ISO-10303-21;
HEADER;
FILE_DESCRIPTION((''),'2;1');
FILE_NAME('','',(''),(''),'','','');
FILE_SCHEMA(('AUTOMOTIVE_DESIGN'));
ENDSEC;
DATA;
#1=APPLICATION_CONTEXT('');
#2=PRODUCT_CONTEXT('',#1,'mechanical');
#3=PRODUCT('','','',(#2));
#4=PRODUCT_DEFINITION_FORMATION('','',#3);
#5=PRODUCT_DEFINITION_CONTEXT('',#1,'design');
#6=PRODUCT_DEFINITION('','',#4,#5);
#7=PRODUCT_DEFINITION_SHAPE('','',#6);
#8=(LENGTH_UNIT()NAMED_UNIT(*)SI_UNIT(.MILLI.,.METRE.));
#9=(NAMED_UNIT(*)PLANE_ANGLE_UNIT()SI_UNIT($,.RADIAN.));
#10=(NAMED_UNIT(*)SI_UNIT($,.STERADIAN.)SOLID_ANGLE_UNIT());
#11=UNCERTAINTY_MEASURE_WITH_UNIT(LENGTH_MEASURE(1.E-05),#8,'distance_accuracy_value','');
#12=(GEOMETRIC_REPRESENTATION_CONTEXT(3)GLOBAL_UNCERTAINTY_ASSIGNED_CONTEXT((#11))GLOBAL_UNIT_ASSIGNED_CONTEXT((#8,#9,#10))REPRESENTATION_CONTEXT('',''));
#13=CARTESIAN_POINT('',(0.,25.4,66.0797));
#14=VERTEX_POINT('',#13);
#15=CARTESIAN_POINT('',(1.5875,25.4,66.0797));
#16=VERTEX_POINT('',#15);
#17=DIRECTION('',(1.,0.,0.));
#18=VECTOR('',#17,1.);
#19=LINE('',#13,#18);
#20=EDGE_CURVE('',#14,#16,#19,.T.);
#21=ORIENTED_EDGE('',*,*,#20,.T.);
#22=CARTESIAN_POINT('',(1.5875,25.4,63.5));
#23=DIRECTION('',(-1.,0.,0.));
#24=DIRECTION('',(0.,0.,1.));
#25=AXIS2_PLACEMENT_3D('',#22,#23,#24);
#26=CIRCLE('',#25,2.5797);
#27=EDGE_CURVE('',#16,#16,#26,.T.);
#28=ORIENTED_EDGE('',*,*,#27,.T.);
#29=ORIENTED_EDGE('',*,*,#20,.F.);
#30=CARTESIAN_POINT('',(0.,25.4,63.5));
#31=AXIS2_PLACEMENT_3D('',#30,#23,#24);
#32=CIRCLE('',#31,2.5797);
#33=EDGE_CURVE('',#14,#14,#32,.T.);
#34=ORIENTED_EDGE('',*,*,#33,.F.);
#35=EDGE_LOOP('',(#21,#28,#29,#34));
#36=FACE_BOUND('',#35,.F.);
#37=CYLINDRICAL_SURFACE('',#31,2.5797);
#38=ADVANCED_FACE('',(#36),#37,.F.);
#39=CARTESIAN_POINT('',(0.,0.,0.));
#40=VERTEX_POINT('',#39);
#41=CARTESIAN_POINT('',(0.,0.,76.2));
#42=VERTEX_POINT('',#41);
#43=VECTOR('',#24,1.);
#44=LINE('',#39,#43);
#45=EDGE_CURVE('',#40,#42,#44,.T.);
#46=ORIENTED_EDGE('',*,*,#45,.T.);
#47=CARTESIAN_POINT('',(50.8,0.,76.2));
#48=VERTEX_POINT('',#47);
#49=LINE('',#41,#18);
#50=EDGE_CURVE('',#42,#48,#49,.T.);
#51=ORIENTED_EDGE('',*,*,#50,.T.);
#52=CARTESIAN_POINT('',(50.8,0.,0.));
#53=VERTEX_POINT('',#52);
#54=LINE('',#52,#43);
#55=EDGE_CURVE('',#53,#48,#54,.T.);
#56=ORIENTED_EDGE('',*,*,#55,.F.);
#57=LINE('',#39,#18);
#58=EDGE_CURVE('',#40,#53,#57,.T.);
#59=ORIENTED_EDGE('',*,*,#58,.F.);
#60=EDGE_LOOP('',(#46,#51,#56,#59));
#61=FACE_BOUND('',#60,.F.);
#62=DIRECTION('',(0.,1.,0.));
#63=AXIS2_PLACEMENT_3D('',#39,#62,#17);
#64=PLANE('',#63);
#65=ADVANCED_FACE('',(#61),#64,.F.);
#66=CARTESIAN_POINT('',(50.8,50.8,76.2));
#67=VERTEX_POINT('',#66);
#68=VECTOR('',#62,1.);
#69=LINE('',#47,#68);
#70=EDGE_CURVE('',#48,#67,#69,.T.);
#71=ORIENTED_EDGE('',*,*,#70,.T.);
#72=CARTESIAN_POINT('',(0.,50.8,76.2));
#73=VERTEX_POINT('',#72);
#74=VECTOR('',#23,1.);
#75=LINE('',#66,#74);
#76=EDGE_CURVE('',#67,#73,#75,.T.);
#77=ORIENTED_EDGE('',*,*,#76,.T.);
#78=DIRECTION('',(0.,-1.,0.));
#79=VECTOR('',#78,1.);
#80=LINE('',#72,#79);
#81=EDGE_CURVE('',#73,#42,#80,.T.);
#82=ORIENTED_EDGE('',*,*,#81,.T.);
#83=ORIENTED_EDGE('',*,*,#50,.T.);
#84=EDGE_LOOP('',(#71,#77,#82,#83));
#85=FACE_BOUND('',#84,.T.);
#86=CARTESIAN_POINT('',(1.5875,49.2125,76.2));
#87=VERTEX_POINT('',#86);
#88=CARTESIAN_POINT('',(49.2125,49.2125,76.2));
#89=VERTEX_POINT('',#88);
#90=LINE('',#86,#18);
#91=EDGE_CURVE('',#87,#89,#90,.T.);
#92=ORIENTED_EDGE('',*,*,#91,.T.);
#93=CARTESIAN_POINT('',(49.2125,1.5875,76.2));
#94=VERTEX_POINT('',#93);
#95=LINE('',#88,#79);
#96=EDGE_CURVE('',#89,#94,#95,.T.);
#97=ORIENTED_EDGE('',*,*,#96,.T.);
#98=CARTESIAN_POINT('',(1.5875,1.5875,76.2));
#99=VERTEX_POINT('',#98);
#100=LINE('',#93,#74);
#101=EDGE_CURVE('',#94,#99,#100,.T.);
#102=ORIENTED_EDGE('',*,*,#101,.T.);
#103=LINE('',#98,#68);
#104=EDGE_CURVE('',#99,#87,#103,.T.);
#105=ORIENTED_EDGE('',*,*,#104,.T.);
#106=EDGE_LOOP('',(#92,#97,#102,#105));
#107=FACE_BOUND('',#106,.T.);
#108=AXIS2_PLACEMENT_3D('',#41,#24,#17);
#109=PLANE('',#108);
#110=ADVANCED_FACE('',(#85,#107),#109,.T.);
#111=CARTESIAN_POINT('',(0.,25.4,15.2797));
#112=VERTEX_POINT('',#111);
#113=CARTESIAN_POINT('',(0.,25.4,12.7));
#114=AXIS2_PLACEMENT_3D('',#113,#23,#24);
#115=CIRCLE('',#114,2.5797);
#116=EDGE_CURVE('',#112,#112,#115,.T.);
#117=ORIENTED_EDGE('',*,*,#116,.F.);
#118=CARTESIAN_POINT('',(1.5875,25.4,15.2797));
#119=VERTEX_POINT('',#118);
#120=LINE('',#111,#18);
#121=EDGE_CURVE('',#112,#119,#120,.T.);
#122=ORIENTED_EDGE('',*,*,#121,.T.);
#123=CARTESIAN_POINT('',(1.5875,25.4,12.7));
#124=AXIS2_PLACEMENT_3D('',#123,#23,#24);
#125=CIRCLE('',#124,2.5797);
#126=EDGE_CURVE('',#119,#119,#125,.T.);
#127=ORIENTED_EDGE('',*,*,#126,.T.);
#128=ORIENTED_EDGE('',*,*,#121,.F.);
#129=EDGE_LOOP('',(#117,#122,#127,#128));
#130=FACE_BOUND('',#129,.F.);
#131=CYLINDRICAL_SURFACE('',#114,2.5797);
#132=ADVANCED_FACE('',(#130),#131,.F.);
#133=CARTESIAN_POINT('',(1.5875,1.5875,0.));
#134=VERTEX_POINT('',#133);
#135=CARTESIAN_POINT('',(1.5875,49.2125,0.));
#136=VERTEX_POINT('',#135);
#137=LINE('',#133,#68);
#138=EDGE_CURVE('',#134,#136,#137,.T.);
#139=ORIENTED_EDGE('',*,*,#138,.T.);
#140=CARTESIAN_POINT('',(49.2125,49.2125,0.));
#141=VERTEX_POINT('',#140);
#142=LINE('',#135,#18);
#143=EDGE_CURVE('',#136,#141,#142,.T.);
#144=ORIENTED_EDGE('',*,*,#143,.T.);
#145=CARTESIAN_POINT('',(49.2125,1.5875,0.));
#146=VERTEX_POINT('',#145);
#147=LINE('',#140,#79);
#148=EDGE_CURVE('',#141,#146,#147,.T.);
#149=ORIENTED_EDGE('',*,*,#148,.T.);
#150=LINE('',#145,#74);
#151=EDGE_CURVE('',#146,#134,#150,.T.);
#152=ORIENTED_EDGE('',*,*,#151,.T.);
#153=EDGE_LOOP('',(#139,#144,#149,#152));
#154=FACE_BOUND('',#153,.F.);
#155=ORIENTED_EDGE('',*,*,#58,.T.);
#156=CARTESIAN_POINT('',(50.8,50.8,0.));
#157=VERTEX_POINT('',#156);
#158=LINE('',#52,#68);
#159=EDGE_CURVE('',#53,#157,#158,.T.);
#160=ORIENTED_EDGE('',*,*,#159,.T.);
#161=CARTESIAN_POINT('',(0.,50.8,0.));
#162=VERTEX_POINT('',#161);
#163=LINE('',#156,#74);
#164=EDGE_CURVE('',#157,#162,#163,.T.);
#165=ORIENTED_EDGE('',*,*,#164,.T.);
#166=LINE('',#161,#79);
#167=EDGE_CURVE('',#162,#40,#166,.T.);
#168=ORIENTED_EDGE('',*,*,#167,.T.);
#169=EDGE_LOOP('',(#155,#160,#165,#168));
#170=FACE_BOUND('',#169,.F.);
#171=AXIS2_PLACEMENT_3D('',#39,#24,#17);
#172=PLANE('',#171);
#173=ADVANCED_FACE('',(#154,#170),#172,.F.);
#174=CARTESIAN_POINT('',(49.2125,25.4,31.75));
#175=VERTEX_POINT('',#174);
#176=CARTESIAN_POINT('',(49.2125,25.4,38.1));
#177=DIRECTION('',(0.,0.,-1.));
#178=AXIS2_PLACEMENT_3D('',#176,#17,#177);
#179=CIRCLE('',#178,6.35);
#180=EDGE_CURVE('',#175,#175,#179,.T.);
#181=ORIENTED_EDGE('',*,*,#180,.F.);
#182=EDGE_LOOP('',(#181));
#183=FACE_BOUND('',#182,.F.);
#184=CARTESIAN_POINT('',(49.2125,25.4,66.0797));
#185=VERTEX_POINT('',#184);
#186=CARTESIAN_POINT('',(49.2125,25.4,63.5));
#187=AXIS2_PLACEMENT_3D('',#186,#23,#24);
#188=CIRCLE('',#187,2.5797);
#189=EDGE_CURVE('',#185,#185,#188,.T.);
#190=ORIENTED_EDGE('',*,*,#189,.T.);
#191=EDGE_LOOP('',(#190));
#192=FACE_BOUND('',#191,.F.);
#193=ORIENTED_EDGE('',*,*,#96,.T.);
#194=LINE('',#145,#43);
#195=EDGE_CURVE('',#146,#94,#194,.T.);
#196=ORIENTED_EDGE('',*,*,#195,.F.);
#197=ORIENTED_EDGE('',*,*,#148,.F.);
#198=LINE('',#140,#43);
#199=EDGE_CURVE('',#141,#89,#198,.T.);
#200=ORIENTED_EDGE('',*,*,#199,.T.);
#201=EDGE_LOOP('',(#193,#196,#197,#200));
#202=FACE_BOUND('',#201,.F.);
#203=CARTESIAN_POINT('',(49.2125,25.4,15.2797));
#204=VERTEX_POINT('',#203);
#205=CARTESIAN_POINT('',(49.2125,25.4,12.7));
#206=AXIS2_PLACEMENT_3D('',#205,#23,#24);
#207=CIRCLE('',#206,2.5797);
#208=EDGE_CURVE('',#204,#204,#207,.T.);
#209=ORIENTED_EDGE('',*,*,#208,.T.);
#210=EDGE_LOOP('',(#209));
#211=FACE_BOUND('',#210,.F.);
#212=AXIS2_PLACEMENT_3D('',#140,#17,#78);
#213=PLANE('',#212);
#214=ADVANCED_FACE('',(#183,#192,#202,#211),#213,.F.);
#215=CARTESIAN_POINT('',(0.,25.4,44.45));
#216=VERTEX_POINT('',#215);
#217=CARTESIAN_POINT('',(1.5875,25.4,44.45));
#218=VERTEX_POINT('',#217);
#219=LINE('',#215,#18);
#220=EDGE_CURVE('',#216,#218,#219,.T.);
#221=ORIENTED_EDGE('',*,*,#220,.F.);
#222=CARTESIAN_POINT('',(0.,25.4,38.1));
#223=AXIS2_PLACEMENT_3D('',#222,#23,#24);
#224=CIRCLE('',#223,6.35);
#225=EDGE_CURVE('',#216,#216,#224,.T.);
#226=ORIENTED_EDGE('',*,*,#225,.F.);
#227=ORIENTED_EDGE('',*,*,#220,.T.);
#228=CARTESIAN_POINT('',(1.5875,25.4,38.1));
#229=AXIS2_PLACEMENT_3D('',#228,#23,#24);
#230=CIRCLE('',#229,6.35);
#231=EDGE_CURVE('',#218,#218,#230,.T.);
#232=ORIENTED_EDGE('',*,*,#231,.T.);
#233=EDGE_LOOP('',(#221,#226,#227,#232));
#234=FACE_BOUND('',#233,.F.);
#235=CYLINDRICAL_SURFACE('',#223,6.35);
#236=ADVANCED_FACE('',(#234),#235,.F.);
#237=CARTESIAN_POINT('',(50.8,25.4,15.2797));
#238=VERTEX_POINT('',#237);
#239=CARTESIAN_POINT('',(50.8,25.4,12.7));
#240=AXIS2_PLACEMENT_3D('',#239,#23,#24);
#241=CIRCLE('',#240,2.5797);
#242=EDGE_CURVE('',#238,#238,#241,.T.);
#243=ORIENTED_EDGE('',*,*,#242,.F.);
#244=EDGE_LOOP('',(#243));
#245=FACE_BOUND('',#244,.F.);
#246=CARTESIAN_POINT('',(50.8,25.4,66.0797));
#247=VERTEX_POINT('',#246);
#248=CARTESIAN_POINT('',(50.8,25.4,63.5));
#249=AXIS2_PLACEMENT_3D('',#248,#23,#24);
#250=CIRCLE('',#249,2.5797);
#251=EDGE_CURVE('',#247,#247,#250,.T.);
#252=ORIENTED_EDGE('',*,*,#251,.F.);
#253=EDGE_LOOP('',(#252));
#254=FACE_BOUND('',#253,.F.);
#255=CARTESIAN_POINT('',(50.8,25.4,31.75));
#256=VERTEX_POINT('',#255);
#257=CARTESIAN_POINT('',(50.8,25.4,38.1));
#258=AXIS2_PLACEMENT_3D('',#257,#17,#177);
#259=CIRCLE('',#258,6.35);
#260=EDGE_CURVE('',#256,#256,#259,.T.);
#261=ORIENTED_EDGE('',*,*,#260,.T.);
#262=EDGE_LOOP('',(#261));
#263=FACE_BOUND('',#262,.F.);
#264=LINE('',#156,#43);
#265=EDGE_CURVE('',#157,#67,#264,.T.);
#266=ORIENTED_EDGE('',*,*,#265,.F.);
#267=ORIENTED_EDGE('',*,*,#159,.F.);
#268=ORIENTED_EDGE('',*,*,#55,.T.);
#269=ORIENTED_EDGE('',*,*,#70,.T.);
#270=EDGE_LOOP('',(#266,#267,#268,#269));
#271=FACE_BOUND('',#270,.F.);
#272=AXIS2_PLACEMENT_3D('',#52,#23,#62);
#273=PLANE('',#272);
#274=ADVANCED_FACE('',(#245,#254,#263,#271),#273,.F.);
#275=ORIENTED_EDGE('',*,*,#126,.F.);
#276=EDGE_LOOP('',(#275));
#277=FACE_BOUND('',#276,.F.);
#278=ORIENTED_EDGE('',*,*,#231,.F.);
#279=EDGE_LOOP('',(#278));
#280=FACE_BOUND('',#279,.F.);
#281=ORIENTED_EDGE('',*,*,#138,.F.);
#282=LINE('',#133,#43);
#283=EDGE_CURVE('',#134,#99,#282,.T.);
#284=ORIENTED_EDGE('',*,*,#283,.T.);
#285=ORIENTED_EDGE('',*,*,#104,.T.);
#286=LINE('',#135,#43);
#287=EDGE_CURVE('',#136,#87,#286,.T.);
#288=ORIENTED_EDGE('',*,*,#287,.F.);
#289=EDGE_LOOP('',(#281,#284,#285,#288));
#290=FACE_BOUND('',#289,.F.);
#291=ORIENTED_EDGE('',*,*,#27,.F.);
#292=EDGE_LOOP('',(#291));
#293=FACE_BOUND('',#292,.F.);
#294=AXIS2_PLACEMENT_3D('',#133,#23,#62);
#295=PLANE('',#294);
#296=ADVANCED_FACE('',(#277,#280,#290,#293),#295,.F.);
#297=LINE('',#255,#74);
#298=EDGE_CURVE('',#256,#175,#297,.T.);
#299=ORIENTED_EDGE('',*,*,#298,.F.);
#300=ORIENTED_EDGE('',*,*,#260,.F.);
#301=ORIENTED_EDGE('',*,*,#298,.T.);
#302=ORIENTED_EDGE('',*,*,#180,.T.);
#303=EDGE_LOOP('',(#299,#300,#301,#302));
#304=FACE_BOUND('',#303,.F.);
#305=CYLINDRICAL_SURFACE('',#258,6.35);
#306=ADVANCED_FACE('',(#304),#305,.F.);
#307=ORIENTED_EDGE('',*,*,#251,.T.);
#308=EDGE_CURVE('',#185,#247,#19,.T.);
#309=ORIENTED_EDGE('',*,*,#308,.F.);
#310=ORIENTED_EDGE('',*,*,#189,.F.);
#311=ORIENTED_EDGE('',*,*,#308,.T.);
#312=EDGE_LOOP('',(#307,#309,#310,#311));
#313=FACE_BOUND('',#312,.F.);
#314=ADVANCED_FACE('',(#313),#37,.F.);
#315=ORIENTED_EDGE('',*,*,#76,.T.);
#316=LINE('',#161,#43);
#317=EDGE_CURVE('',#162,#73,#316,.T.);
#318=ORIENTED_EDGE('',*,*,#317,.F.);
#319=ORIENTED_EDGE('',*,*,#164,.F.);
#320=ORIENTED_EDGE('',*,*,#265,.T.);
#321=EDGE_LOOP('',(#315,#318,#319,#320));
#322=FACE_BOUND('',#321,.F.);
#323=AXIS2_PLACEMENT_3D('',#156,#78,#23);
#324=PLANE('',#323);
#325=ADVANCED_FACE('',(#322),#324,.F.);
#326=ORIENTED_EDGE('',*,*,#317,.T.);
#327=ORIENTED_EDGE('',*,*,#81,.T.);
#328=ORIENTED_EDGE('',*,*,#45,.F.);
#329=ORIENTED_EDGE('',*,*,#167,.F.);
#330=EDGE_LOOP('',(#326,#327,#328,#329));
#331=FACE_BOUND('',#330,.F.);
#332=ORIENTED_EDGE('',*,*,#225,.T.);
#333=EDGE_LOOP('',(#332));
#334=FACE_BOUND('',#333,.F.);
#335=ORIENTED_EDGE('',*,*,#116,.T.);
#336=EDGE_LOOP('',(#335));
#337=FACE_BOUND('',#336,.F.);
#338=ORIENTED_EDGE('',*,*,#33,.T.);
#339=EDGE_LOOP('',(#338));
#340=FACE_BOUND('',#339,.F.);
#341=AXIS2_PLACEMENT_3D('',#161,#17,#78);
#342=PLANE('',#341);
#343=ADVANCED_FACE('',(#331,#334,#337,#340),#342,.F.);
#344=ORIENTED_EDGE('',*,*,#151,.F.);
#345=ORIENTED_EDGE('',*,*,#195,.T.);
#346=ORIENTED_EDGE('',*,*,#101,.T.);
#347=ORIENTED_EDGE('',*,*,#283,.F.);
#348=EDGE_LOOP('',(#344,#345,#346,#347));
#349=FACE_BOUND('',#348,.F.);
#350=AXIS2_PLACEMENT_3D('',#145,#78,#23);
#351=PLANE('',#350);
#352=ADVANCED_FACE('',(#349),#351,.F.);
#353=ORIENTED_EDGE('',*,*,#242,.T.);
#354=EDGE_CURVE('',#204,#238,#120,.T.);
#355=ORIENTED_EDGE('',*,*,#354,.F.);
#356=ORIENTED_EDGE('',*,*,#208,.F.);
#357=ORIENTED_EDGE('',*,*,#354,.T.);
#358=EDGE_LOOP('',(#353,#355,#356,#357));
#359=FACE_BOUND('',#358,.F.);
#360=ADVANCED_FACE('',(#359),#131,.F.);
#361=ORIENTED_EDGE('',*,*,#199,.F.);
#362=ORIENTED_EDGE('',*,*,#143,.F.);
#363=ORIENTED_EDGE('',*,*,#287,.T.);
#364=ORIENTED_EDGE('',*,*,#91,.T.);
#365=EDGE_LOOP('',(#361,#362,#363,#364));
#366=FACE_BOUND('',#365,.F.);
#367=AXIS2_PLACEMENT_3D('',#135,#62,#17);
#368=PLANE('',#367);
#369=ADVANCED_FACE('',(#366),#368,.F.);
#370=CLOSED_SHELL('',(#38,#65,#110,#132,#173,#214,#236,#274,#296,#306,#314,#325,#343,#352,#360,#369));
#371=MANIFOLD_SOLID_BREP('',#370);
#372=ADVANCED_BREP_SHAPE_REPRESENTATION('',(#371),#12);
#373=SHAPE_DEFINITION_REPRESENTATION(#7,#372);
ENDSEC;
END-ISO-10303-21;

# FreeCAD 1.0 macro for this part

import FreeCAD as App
import Part
import Sketcher
Q = App.Units.Quantity


def add_polygon(sketch, points):
    """Adds a closed chain of lines whose ends are joined by coincident constraints."""
    first, n = sketch.GeometryCount, len(points)
    for a, b in zip(points, points[1:] + points[:1]):
        sketch.addGeometry(Part.LineSegment(App.Vector(*a, 0), App.Vector(*b, 0)), False)
    for i in range(n):
        sketch.addConstraint(Sketcher.Constraint("Coincident", first + i, 2, first + (i + 1) % n, 1))

doc = App.newDocument("Part")
body = doc.addObject("PartDesign::Body", "Body")

# Sketch on XY plane
sketch1 = body.newObject("Sketcher::SketchObject", "Sketch")
sketch1.AttachmentSupport = (doc.getObject("XY_Plane"), [""])
sketch1.MapMode = "FlatFace"
add_polygon(sketch1, [(0, 50.8), (0, 0), (50.8, 0), (50.8, 50.8)])  # lines 0-3
add_polygon(sketch1, [(1.5875, 1.5875), (1.5875, 49.2125), (49.2125, 49.2125), (49.2125, 1.5875)])  # lines 4-7
sketch1.addConstraint([
    Sketcher.Constraint("Vertical", 0),
    Sketcher.Constraint("Horizontal", 1),
    Sketcher.Constraint("Vertical", 2),
    Sketcher.Constraint("Horizontal", 3),
    Sketcher.Constraint("Vertical", 4),
    Sketcher.Constraint("Horizontal", 5),
    Sketcher.Constraint("Vertical", 6),
    Sketcher.Constraint("Horizontal", 7),
    Sketcher.Constraint("Coincident", 0, 2, -1, 1),
    Sketcher.Constraint("Equal", 3, 0),
    Sketcher.Constraint("Equal", 7, 4),
    Sketcher.Constraint("DistanceX", 1, 1, 1, 2, Q("2 in")),
    Sketcher.Constraint("DistanceX", -1, 1, 4, 2, Q("0.0625 in")),
    Sketcher.Constraint("DistanceY", -1, 1, 6, 2, Q("0.0625 in")),
    Sketcher.Constraint("DistanceY", 4, 2, 3, 2, Q("0.0625 in")),
])
pad1 = body.newObject("PartDesign::Pad", "Pad")
pad1.Profile = sketch1
pad1.Length = Q("3 in")

# Sketch on YZ plane
sketch2 = body.newObject("Sketcher::SketchObject", "Sketch001")
sketch2.AttachmentSupport = (doc.getObject("YZ_Plane"), [""])
sketch2.MapMode = "FlatFace"
sketch2.AttachmentOffset = App.Placement(App.Vector(0, 0, 2 * 25.4), App.Rotation())
sketch2.addGeometry(Part.Circle(App.Vector(25.4, 38.1, 0), App.Vector(0, 0, 1), 6.35), False)
sketch2.addConstraint([
    Sketcher.Constraint("Diameter", 0, Q("0.5 in")),
    Sketcher.Constraint("DistanceX", -1, 1, 0, 3, Q("1 in")),
    Sketcher.Constraint("DistanceY", -1, 1, 0, 3, Q("1.5 in")),
])
pocket1 = body.newObject("PartDesign::Pocket", "Pocket")
pocket1.Profile = sketch2
pocket1.Length = Q("0.1875 in")

# Sketch on YZ plane
sketch3 = body.newObject("Sketcher::SketchObject", "Sketch002")
sketch3.AttachmentSupport = (doc.getObject("YZ_Plane"), [""])
sketch3.MapMode = "FlatFace"
sketch3.addGeometry(Part.Circle(App.Vector(25.4, 38.1, 0), App.Vector(0, 0, 1), 6.35), False)
sketch3.addConstraint([
    Sketcher.Constraint("Diameter", 0, Q("0.5 in")),
    Sketcher.Constraint("DistanceX", -1, 1, 0, 3, Q("1 in")),
    Sketcher.Constraint("DistanceY", -1, 1, 0, 3, Q("1.5 in")),
])
pocket2 = body.newObject("PartDesign::Pocket", "Pocket001")
pocket2.Profile = sketch3
pocket2.Length = Q("0.1875 in")
pocket2.Reversed = True

# Sketch on YZ plane
sketch4 = body.newObject("Sketcher::SketchObject", "Sketch003")
sketch4.AttachmentSupport = (doc.getObject("YZ_Plane"), [""])
sketch4.MapMode = "FlatFace"
sketch4.addGeometry([
    Part.Circle(App.Vector(25.4, 12.7, 0), App.Vector(0, 0, 1), 2.5797),
    Part.Circle(App.Vector(25.4, 63.5, 0), App.Vector(0, 0, 1), 2.5797),
], False)
sketch4.addConstraint([
    Sketcher.Constraint("Equal", 0, 1),
    Sketcher.Constraint("Vertical", 0, 3, 1, 3),
    Sketcher.Constraint("Diameter", 0, Q("0.203126 in")),
    Sketcher.Constraint("DistanceY", 0, 3, 1, 3, Q("2 in")),
    Sketcher.Constraint("DistanceY", -1, 1, 0, 3, Q("0.5 in")),
    Sketcher.Constraint("DistanceX", -1, 1, 0, 3, Q("1 in")),
])
pocket3 = body.newObject("PartDesign::Pocket", "Pocket002")
pocket3.Profile = sketch4
pocket3.Length = Q("2.1875 in")
pocket3.Reversed = True

doc.recompute()
